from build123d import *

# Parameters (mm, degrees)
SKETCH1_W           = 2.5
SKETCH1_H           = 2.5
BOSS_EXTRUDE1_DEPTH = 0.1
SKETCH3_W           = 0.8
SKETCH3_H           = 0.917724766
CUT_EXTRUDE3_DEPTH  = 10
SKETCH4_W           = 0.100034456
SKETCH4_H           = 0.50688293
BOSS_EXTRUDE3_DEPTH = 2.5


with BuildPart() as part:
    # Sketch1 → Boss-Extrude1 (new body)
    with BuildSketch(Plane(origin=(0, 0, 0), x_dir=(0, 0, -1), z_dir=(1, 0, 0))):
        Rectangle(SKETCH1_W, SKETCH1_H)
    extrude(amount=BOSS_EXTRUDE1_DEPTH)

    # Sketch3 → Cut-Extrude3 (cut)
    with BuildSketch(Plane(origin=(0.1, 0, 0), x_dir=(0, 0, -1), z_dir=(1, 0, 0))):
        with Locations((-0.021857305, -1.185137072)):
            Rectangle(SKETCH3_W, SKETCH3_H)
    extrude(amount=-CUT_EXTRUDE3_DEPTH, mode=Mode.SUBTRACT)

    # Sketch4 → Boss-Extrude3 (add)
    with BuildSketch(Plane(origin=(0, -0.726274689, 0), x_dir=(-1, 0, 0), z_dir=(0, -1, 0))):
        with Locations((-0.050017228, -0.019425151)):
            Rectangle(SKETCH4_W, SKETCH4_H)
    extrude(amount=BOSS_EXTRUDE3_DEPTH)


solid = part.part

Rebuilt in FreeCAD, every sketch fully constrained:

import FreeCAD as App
import Part
import Sketcher

V = App.Vector


def add_polygon(sketch, points):
    """Adds a closed chain of lines whose ends are joined by coincident constraints."""
    first, n = sketch.GeometryCount, len(points)
    for a, b in zip(points, points[1:] + points[:1]):
        sketch.addGeometry(Part.LineSegment(App.Vector(*a, 0), App.Vector(*b, 0)), False)
    for i in range(n):
        sketch.addConstraint(Sketcher.Constraint("Coincident", first + i, 2, first + (i + 1) % n, 1))

doc = App.newDocument("Part")
body = doc.addObject("PartDesign::Body", "Body")

# Sketch on YZ plane
sketch1 = body.newObject("Sketcher::SketchObject", "Sketch")
sketch1.AttachmentSupport = (doc.getObject("YZ_Plane"), [""])
sketch1.MapMode = "FlatFace"
add_polygon(sketch1, [(1.2, 1.2), (-1.2, 1.2), (-1.2, -1.2), (1.2, -1.2)])  # lines 0-3
sketch1.addConstraint([
    Sketcher.Constraint("Horizontal", 0),
    Sketcher.Constraint("Vertical", 1),
    Sketcher.Constraint("Horizontal", 2),
    Sketcher.Constraint("Vertical", 3),
    Sketcher.Constraint("Symmetric", 0, 2, 2, 2, -1, 1),
    Sketcher.Constraint("Equal", 2, 1),
    Sketcher.Constraint("DistanceX", 0, 2, 0, 1, 2.5),
])
pad1 = body.newObject("PartDesign::Pad", "Pad")
pad1.Profile = sketch1
pad1.Length = 0.1

# Sketch on YZ plane
sketch2 = body.newObject("Sketcher::SketchObject", "Sketch001")
sketch2.AttachmentSupport = (doc.getObject("YZ_Plane"), [""])
sketch2.MapMode = "FlatFace"
sketch2.AttachmentOffset = App.Placement(V(0, 0, 0.1), App.Rotation())
add_polygon(sketch2, [(-0.7, 0.4), (-1.6, 0.4), (-1.6, -0.4), (-0.7, -0.4)])  # lines 0-3
sketch2.addConstraint([
    Sketcher.Constraint("Horizontal", 0),
    Sketcher.Constraint("Vertical", 1),
    Sketcher.Constraint("Horizontal", 2),
    Sketcher.Constraint("Vertical", 3),
    Sketcher.Constraint("DistanceY", 1, 2, 1, 1, 0.8),
    Sketcher.Constraint("DistanceX", 0, 2, -1, 1, 1.643999),
    Sketcher.Constraint("DistanceX", 0, 2, 0, 1, 0.917725),
    Sketcher.Constraint("DistanceY", -1, 1, 0, 2, 0.421857),
])
pocket1 = body.newObject("PartDesign::Pocket", "Pocket")
pocket1.Profile = sketch2
pocket1.Length = 10

# Sketch on XZ plane
sketch3 = body.newObject("Sketcher::SketchObject", "Sketch002")
sketch3.AttachmentSupport = (doc.getObject("XZ_Plane"), [""])
sketch3.MapMode = "FlatFace"
sketch3.AttachmentOffset = App.Placement(V(0, 0, 0.726275), App.Rotation())
add_polygon(sketch3, [(0.1, -0.23), (0.1, 0.27), (0, 0.27), (0, -0.23)])  # lines 0-3
sketch3.addConstraint([
    Sketcher.Constraint("Vertical", 0),
    Sketcher.Constraint("Horizontal", 1),
    Sketcher.Constraint("Vertical", 2),
    Sketcher.Constraint("Horizontal", 3),
    Sketcher.Constraint("PointOnObject", 1, 2, -2),
    Sketcher.Constraint("DistanceX", 1, 2, 1, 1, 0.100034),
    Sketcher.Constraint("DistanceY", 0, 1, 0, 2, 0.506883),
    Sketcher.Constraint("DistanceY", -1, 1, 0, 2, 0.272867),
])
pad2 = body.newObject("PartDesign::Pad", "Pad001")
pad2.Profile = sketch3
pad2.Length = 2.5

doc.recompute()
